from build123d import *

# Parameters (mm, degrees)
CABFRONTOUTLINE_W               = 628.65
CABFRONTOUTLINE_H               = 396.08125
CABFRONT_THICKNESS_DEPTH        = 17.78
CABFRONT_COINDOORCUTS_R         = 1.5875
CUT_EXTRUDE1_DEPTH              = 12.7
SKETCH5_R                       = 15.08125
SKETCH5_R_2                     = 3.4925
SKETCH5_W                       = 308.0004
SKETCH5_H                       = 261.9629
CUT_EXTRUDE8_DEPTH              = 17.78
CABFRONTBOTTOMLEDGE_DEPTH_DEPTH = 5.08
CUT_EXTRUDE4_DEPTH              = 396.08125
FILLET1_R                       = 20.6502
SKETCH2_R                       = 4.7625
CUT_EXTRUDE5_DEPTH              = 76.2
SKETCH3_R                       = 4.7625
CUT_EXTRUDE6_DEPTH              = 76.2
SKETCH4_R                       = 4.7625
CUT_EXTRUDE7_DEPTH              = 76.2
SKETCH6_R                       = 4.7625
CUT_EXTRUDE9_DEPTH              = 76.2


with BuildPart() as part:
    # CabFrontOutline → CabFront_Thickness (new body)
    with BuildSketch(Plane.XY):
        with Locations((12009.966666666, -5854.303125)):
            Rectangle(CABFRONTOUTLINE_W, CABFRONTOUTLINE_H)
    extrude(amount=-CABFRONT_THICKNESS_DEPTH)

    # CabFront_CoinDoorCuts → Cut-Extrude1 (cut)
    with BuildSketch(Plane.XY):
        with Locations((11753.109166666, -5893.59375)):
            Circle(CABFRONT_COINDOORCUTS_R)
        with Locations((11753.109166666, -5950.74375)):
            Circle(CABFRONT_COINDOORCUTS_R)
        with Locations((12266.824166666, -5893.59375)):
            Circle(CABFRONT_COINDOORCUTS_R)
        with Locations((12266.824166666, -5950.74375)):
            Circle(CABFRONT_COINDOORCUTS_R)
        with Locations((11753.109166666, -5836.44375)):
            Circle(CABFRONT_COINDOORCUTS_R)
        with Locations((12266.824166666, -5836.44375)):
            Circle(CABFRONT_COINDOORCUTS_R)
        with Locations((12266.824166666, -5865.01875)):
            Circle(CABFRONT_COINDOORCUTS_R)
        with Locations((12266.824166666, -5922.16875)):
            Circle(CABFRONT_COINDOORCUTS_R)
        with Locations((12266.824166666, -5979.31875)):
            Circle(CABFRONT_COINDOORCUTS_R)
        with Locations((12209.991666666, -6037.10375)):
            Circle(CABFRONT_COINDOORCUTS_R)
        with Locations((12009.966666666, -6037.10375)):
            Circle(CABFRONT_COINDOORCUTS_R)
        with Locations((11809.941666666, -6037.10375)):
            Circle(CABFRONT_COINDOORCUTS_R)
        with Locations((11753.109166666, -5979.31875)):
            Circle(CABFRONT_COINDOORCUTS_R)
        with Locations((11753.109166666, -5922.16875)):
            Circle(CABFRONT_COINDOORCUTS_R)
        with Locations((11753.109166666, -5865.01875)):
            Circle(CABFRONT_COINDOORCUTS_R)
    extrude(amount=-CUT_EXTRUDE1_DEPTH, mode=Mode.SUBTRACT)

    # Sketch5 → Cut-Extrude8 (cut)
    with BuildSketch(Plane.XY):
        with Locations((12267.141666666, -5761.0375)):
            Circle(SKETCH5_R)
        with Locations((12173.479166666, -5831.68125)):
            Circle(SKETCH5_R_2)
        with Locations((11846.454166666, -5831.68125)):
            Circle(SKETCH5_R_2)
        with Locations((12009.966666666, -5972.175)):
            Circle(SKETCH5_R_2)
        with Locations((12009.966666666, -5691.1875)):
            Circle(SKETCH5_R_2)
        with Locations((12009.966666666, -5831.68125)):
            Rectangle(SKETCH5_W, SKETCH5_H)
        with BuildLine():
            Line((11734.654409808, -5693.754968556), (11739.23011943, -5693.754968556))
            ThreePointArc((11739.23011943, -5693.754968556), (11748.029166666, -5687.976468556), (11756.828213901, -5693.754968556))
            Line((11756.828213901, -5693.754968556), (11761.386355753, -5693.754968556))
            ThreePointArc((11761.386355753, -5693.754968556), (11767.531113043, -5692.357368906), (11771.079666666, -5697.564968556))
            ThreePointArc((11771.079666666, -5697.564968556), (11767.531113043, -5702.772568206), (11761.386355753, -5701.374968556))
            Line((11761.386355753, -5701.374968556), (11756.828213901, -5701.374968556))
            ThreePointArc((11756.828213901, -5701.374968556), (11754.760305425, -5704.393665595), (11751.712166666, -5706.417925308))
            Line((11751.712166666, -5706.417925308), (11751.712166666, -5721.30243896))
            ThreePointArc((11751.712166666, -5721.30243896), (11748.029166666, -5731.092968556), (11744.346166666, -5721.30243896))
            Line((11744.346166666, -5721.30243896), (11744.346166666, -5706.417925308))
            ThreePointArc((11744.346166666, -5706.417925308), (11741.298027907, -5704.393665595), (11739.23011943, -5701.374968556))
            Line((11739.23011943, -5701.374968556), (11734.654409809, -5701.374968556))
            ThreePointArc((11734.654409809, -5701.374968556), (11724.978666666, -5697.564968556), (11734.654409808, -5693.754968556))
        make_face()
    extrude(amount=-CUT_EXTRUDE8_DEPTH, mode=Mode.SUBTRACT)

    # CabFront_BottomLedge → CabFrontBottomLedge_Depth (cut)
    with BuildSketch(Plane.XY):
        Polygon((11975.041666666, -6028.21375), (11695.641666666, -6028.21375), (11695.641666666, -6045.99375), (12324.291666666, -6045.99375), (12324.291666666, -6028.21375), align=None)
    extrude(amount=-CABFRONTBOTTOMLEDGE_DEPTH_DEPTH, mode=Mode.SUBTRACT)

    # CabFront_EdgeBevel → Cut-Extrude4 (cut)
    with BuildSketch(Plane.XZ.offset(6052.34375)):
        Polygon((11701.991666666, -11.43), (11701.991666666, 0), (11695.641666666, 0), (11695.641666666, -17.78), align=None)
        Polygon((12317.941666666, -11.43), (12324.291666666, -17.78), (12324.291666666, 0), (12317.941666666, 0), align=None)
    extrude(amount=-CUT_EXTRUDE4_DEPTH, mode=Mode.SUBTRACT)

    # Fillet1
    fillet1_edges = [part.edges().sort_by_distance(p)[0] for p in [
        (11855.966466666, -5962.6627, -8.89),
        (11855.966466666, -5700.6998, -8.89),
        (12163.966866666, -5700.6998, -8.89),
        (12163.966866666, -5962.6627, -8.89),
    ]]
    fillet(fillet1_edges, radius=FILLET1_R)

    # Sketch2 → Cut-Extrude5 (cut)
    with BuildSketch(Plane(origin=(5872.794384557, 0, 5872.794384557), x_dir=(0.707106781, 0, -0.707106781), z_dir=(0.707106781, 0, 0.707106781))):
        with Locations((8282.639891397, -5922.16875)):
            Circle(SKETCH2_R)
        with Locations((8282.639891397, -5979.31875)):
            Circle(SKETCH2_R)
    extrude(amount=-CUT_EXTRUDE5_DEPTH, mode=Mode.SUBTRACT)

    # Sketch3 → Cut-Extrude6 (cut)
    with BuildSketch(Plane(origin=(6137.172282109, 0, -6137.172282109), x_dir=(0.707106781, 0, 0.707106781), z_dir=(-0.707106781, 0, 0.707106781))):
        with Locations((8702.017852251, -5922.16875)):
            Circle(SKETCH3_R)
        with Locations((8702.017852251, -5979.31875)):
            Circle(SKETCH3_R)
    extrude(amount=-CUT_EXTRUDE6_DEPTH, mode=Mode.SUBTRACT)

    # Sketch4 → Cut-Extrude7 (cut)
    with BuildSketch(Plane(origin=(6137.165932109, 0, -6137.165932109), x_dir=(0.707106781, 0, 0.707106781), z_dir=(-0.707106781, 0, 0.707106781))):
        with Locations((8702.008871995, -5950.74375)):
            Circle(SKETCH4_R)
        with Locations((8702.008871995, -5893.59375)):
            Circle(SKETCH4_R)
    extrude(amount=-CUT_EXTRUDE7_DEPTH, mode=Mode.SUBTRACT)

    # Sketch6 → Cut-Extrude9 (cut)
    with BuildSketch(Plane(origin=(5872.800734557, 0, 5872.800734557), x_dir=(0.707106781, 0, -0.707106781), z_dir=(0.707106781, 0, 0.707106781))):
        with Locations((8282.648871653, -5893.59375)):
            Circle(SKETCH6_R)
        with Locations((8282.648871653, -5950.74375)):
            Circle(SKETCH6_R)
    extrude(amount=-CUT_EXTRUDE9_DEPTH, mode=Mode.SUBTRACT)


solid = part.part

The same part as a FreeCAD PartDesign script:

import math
import FreeCAD as App
import Part
import Sketcher
from FreeCAD import Vector
Q = App.Units.Quantity


def edges_at(feature, points):
    """Names of the edges that pass closest to the given points."""
    edges = feature.Shape.Edges
    near = lambda p: min(range(len(edges)), key=lambda i: edges[i].distToShape(Part.Vertex(*p))[0])
    return sorted({f"Edge{near(p) + 1}" for p in points})


def add_polygon(sketch, points):
    """Adds a closed chain of lines whose ends are joined by coincident constraints."""
    first, n = sketch.GeometryCount, len(points)
    for a, b in zip(points, points[1:] + points[:1]):
        sketch.addGeometry(Part.LineSegment(App.Vector(*a, 0), App.Vector(*b, 0)), False)
    for i in range(n):
        sketch.addConstraint(Sketcher.Constraint("Coincident", first + i, 2, first + (i + 1) % n, 1))

doc = App.newDocument("Part")
body = doc.addObject("PartDesign::Body", "Body")

# Sketch on XY plane
sketch1 = body.newObject("Sketcher::SketchObject", "Sketch")
sketch1.AttachmentSupport = (doc.getObject("XY_Plane"), [""])
sketch1.MapMode = "FlatFace"
add_polygon(sketch1, [(11695.641667, -5656.2625), (11695.641667, -6052.34375), (12324.291667, -6052.34375), (12324.291667, -5656.2625)])  # lines 0-3
sketch1.addConstraint(Sketcher.Constraint("Vertical", 0))
sketch1.addConstraint(Sketcher.Constraint("Horizontal", 1))
sketch1.addConstraint(Sketcher.Constraint("Vertical", 2))
sketch1.addConstraint(Sketcher.Constraint("Horizontal", 3))
sketch1.addConstraint(Sketcher.Constraint("DistanceX", 1, 1, 1, 2, Q("24.75 in")))
sketch1.addConstraint(Sketcher.Constraint("DistanceY", 0, 2, 0, 1, Q("15.59375 in")))
sketch1.addConstraint(Sketcher.Constraint("DistanceY", 0, 2, -1, 1, Q("238.28125 in")))
sketch1.addConstraint(Sketcher.Constraint("DistanceX", -1, 1, 0, 2, 11695.641667))
pad1 = body.newObject("PartDesign::Pad", "Pad")
pad1.Profile = sketch1
pad1.Length = Q("0.7 in")
pad1.Reversed = True

# Sketch on XY plane
sketch2 = body.newObject("Sketcher::SketchObject", "Sketch001")
sketch2.AttachmentSupport = (doc.getObject("XY_Plane"), [""])
sketch2.MapMode = "FlatFace"
sketch2.addGeometry(Part.Circle(Vector(11753.109167, -5893.59375, 0), Vector(0, 0, 1), 1.5875), False)
sketch2.addGeometry(Part.Circle(Vector(11753.109167, -5950.74375, 0), Vector(0, 0, 1), 1.5875), False)
sketch2.addGeometry(Part.Circle(Vector(12266.824167, -5893.59375, 0), Vector(0, 0, 1), 1.5875), False)
sketch2.addGeometry(Part.Circle(Vector(12266.824167, -5950.74375, 0), Vector(0, 0, 1), 1.5875), False)
sketch2.addGeometry(Part.Circle(Vector(11753.109167, -5836.44375, 0), Vector(0, 0, 1), 1.5875), False)
sketch2.addGeometry(Part.Circle(Vector(12266.824167, -5836.44375, 0), Vector(0, 0, 1), 1.5875), False)
sketch2.addGeometry(Part.Circle(Vector(12266.824167, -5865.01875, 0), Vector(0, 0, 1), 1.5875), False)
sketch2.addGeometry(Part.Circle(Vector(12266.824167, -5922.16875, 0), Vector(0, 0, 1), 1.5875), False)
sketch2.addGeometry(Part.Circle(Vector(12266.824167, -5979.31875, 0), Vector(0, 0, 1), 1.5875), False)
sketch2.addGeometry(Part.Circle(Vector(12209.991667, -6037.10375, 0), Vector(0, 0, 1), 1.5875), False)
sketch2.addGeometry(Part.Circle(Vector(12009.966667, -6037.10375, 0), Vector(0, 0, 1), 1.5875), False)
sketch2.addGeometry(Part.Circle(Vector(11809.941667, -6037.10375, 0), Vector(0, 0, 1), 1.5875), False)
sketch2.addGeometry(Part.Circle(Vector(11753.109167, -5979.31875, 0), Vector(0, 0, 1), 1.5875), False)
sketch2.addGeometry(Part.Circle(Vector(11753.109167, -5922.16875, 0), Vector(0, 0, 1), 1.5875), False)
sketch2.addGeometry(Part.Circle(Vector(11753.109167, -5865.01875, 0), Vector(0, 0, 1), 1.5875), False)
sketch2.addConstraint(Sketcher.Constraint("Equal", 0, 1))
sketch2.addConstraint(Sketcher.Constraint("Equal", 1, 2))
sketch2.addConstraint(Sketcher.Constraint("Equal", 2, 3))
sketch2.addConstraint(Sketcher.Constraint("Equal", 3, 4))
sketch2.addConstraint(Sketcher.Constraint("Equal", 4, 5))
sketch2.addConstraint(Sketcher.Constraint("Equal", 5, 6))
sketch2.addConstraint(Sketcher.Constraint("Equal", 6, 7))
sketch2.addConstraint(Sketcher.Constraint("Equal", 7, 8))
sketch2.addConstraint(Sketcher.Constraint("Equal", 8, 9))
sketch2.addConstraint(Sketcher.Constraint("Equal", 9, 10))
sketch2.addConstraint(Sketcher.Constraint("Equal", 10, 11))
sketch2.addConstraint(Sketcher.Constraint("Equal", 11, 12))
sketch2.addConstraint(Sketcher.Constraint("Equal", 12, 13))
sketch2.addConstraint(Sketcher.Constraint("Equal", 13, 14))
sketch2.addConstraint(Sketcher.Constraint("Horizontal", 0, 3, 2, 3))
sketch2.addConstraint(Sketcher.Constraint("Horizontal", 1, 3, 3, 3))
sketch2.addConstraint(Sketcher.Constraint("Horizontal", 4, 3, 5, 3))
sketch2.addConstraint(Sketcher.Constraint("Horizontal", 9, 3, 10, 3))
sketch2.addConstraint(Sketcher.Constraint("Horizontal", 10, 3, 11, 3))
sketch2.addConstraint(Sketcher.Constraint("Horizontal", 8, 3, 12, 3))
sketch2.addConstraint(Sketcher.Constraint("Horizontal", 7, 3, 13, 3))
sketch2.addConstraint(Sketcher.Constraint("Horizontal", 6, 3, 14, 3))
sketch2.addConstraint(Sketcher.Constraint("Vertical", 0, 3, 1, 3))
sketch2.addConstraint(Sketcher.Constraint("Vertical", 2, 3, 3, 3))
sketch2.addConstraint(Sketcher.Constraint("Vertical", 1, 3, 4, 3))
sketch2.addConstraint(Sketcher.Constraint("Vertical", 3, 3, 5, 3))
sketch2.addConstraint(Sketcher.Constraint("Vertical", 5, 3, 6, 3))
sketch2.addConstraint(Sketcher.Constraint("Vertical", 6, 3, 7, 3))
sketch2.addConstraint(Sketcher.Constraint("Vertical", 7, 3, 8, 3))
sketch2.addConstraint(Sketcher.Constraint("Vertical", 4, 3, 12, 3))
sketch2.addConstraint(Sketcher.Constraint("Vertical", 12, 3, 13, 3))
sketch2.addConstraint(Sketcher.Constraint("Vertical", 13, 3, 14, 3))
sketch2.addConstraint(Sketcher.Constraint("Diameter", 0, Q("0.125 in")))
sketch2.addConstraint(Sketcher.Constraint("DistanceY", 1, 3, 4, 3, Q("4.5 in")))
sketch2.addConstraint(Sketcher.Constraint("DistanceY", 8, 3, 6, 3, Q("4.5 in")))
sketch2.addConstraint(Sketcher.Constraint("DistanceY", 9, 3, 3, 3, Q("3.4 in")))
sketch2.addConstraint(Sketcher.Constraint("DistanceY", 1, 3, 0, 3, Q("2.25 in")))
sketch2.addConstraint(Sketcher.Constraint("DistanceY", 7, 3, 6, 3, Q("2.25 in")))
sketch2.addConstraint(Sketcher.Constraint("DistanceX", 11, 3, 9, 3, Q("15.75 in")))
sketch2.addConstraint(Sketcher.Constraint("DistanceY", 0, 3, -1, 1, Q("232.03125 in")))
sketch2.addConstraint(Sketcher.Constraint("DistanceY", 6, 3, -1, 1, Q("230.90625 in")))
sketch2.addConstraint(Sketcher.Constraint("DistanceX", 0, 3, 2, 3, Q("20.225 in")))
sketch2.addConstraint(Sketcher.Constraint("DistanceX", 10, 3, 9, 3, Q("7.875 in")))
sketch2.addConstraint(Sketcher.Constraint("DistanceX", 9, 3, 8, 3, Q("2.2375 in")))
sketch2.addConstraint(Sketcher.Constraint("DistanceX", -1, 1, 0, 3, 11753.109167))
pocket1 = body.newObject("PartDesign::Pocket", "Pocket")
pocket1.Profile = sketch2
pocket1.Length = Q("0.5 in")

# Sketch on XY plane
sketch3 = body.newObject("Sketcher::SketchObject", "Sketch002")
sketch3.AttachmentSupport = (doc.getObject("XY_Plane"), [""])
sketch3.MapMode = "FlatFace"
sketch3.addGeometry(Part.Circle(Vector(12267.141667, -5761.0375, 0), Vector(0, 0, 1), 15.08125), False)  # 0
sketch3.addGeometry(Part.Circle(Vector(12173.479167, -5831.68125, 0), Vector(0, 0, 1), 3.4925), False)  # 1
sketch3.addGeometry(Part.Circle(Vector(11846.454167, -5831.68125, 0), Vector(0, 0, 1), 3.4925), False)  # 2
sketch3.addGeometry(Part.Circle(Vector(12009.966667, -5972.175, 0), Vector(0, 0, 1), 3.4925), False)  # 3
sketch3.addGeometry(Part.Circle(Vector(12009.966667, -5691.1875, 0), Vector(0, 0, 1), 3.4925), False)  # 4
add_polygon(sketch3, [(11855.966467, -5700.6998), (11855.966467, -5962.6627), (12163.966867, -5962.6627), (12163.966867, -5700.6998)])  # lines 5-8
sketch3.addGeometry(Part.LineSegment(Vector(11739.230119, -5693.754969, 0), Vector(11734.65441, -5693.754969, 0)), False)  # 9
sketch3.addGeometry(Part.ArcOfCircle(Part.Circle(Vector(11730.566667, -5697.564969, 0), Vector(0, 0, 1), 5.588), math.radians(42.985886), math.radians(317.014114)), False)  # 10
sketch3.addGeometry(Part.LineSegment(Vector(11734.65441, -5701.374969, 0), Vector(11739.230119, -5701.374969, 0)), False)  # 11
sketch3.addGeometry(Part.ArcOfCircle(Part.Circle(Vector(11748.029167, -5697.564969, 0), Vector(0, 0, 1), 9.5885), math.radians(-156.58732), math.radians(-112.588248)), False)  # 12
sketch3.addGeometry(Part.LineSegment(Vector(11744.346167, -5706.417925, 0), Vector(11744.346167, -5721.302439, 0)), False)  # 13
sketch3.addGeometry(Part.ArcOfCircle(Part.Circle(Vector(11748.029167, -5725.504969, 0), Vector(0, 0, 1), 5.588), math.radians(131.230577), math.radians(408.769423)), False)  # 14
sketch3.addGeometry(Part.LineSegment(Vector(11751.712167, -5721.302439, 0), Vector(11751.712167, -5706.417925, 0)), False)  # 15
sketch3.addGeometry(Part.ArcOfCircle(Part.Circle(Vector(11748.029167, -5697.564969, 0), Vector(0, 0, 1), 9.5885), math.radians(-67.411752), math.radians(-23.41268)), False)  # 16
sketch3.addGeometry(Part.LineSegment(Vector(11756.828214, -5701.374969, 0), Vector(11761.386356, -5701.374969, 0)), False)  # 17
sketch3.addGeometry(Part.ArcOfCircle(Part.Circle(Vector(11765.484242, -5697.564969, 0), Vector(0, 0, 1), 5.595424), math.radians(-137.084932), math.radians(0)), False)  # 18
sketch3.addGeometry(Part.ArcOfCircle(Part.Circle(Vector(11765.484242, -5697.564969, 0), Vector(0, 0, 1), 5.595424), math.radians(0), math.radians(137.084932)), False)  # 19
sketch3.addGeometry(Part.LineSegment(Vector(11761.386356, -5693.754969, 0), Vector(11756.828214, -5693.754969, 0)), False)  # 20
sketch3.addGeometry(Part.ArcOfCircle(Part.Circle(Vector(11748.029167, -5697.564969, 0), Vector(0, 0, 1), 9.5885), math.radians(23.41268), math.radians(156.58732)), False)  # 21
sketch3.addConstraint(Sketcher.Constraint("Coincident", 9, 2, 10, 1))
sketch3.addConstraint(Sketcher.Constraint("Coincident", 10, 2, 11, 1))
sketch3.addConstraint(Sketcher.Constraint("Coincident", 11, 2, 12, 1))
sketch3.addConstraint(Sketcher.Constraint("Coincident", 12, 2, 13, 1))
sketch3.addConstraint(Sketcher.Constraint("Coincident", 13, 2, 14, 1))
sketch3.addConstraint(Sketcher.Constraint("Coincident", 14, 2, 15, 1))
sketch3.addConstraint(Sketcher.Constraint("Coincident", 15, 2, 16, 1))
sketch3.addConstraint(Sketcher.Constraint("Coincident", 16, 2, 17, 1))
sketch3.addConstraint(Sketcher.Constraint("Coincident", 17, 2, 18, 1))
sketch3.addConstraint(Sketcher.Constraint("Tangent", 18, 2, 19, 1))
sketch3.addConstraint(Sketcher.Constraint("Coincident", 19, 2, 20, 1))
sketch3.addConstraint(Sketcher.Constraint("Coincident", 20, 2, 21, 1))
sketch3.addConstraint(Sketcher.Constraint("Coincident", 21, 2, 9, 1))
sketch3.addConstraint(Sketcher.Constraint("Vertical", 5))
sketch3.addConstraint(Sketcher.Constraint("Horizontal", 6))
sketch3.addConstraint(Sketcher.Constraint("Vertical", 7))
sketch3.addConstraint(Sketcher.Constraint("Horizontal", 8))
sketch3.addConstraint(Sketcher.Constraint("Horizontal", 9))
sketch3.addConstraint(Sketcher.Constraint("Horizontal", 11))
sketch3.addConstraint(Sketcher.Constraint("Vertical", 13))
sketch3.addConstraint(Sketcher.Constraint("Vertical", 15))
sketch3.addConstraint(Sketcher.Constraint("Horizontal", 17))
sketch3.addConstraint(Sketcher.Constraint("Horizontal", 20))
sketch3.addConstraint(Sketcher.Constraint("Coincident", 16, 3, 12, 3))
sketch3.addConstraint(Sketcher.Constraint("Coincident", 21, 3, 12, 3))
sketch3.addConstraint(Sketcher.Constraint("Equal", 1, 2))
sketch3.addConstraint(Sketcher.Constraint("Equal", 2, 3))
sketch3.addConstraint(Sketcher.Constraint("Equal", 3, 4))
sketch3.addConstraint(Sketcher.Constraint("Equal", 10, 14))
sketch3.addConstraint(Sketcher.Constraint("Equal", 12, 16))
sketch3.addConstraint(Sketcher.Constraint("Equal", 18, 19))
sketch3.addConstraint(Sketcher.Constraint("Equal", 16, 21))
sketch3.addConstraint(Sketcher.Constraint("Horizontal", 1, 3, 2, 3))
sketch3.addConstraint(Sketcher.Constraint("Horizontal", 10, 3, 12, 3))
sketch3.addConstraint(Sketcher.Constraint("Horizontal", 16, 3, 18, 3))
sketch3.addConstraint(Sketcher.Constraint("Horizontal", 13, 2, 14, 2))
sketch3.addConstraint(Sketcher.Constraint("Horizontal", 12, 2, 15, 2))
sketch3.addConstraint(Sketcher.Constraint("Horizontal", 11, 2, 16, 2))
sketch3.addConstraint(Sketcher.Constraint("Horizontal", 21, 3, 18, 2))
sketch3.addConstraint(Sketcher.Constraint("Horizontal", 9, 2, 19, 2))
sketch3.addConstraint(Sketcher.Constraint("Vertical", 3, 3, 4, 3))
sketch3.addConstraint(Sketcher.Constraint("Vertical", 9, 2, 10, 2))
sketch3.addConstraint(Sketcher.Constraint("Radius", 10, Q("0.22 in")))
sketch3.addConstraint(Sketcher.Constraint("Diameter", 0, Q("1.1875 in")))
sketch3.addConstraint(Sketcher.Constraint("Diameter", 1, Q("0.275 in")))
sketch3.addConstraint(Sketcher.Constraint("DistanceX", 10, 3, 4, 3, Q("11 in")))
sketch3.addConstraint(Sketcher.Constraint("Radius", 12, Q("0.3775 in")))
sketch3.addConstraint(Sketcher.Constraint("DistanceY", 14, 3, 12, 3, Q("1.1 in")))
sketch3.addConstraint(Sketcher.Constraint("DistanceY", 10, 2, 9, 2, Q("0.3 in")))
sketch3.addConstraint(Sketcher.Constraint("DistanceX", 6, 1, 6, 2, Q("12.126 in")))
sketch3.addConstraint(Sketcher.Constraint("DistanceY", 0, 3, 4, 3, Q("2.75 in")))
sketch3.addConstraint(Sketcher.Constraint("DistanceX", 12, 3, 1, 3, Q("16.75 in")))
sketch3.addConstraint(Sketcher.Constraint("DistanceX", 13, 2, 14, 2, Q("0.29 in")))
sketch3.addConstraint(Sketcher.Constraint("DistanceY", 5, 2, 5, 1, Q("10.3135 in")))
sketch3.addConstraint(Sketcher.Constraint("DistanceY", 0, 3, -1, 1, Q("226.8125 in")))
sketch3.addConstraint(Sketcher.Constraint("DistanceY", 1, 3, -1, 1, Q("229.59375 in")))
sketch3.addConstraint(Sketcher.Constraint("DistanceY", 3, 3, -1, 1, Q("235.125 in")))
sketch3.addConstraint(Sketcher.Constraint("DistanceY", 7, 2, -1, 1, Q("224.437 in")))
sketch3.addConstraint(Sketcher.Constraint("DistanceX", 1, 3, 0, 3, Q("3.6875 in")))
sketch3.addConstraint(Sketcher.Constraint("DistanceX", 2, 3, 1, 3, Q("12.875 in")))
sketch3.addConstraint(Sketcher.Constraint("DistanceX", 2, 3, 3, 3, Q("6.4375 in")))
sketch3.addConstraint(Sketcher.Constraint("DistanceX", 5, 2, 3, 3, Q("6.063 in")))
sketch3.addConstraint(Sketcher.Constraint("Radius", 18, 5.595424))
sketch3.addConstraint(Sketcher.Constraint("DistanceX", 15, 2, 18, 2, Q("0.7625 in")))
sketch3.addConstraint(Sketcher.Constraint("DistanceY", 10, 3, -1, 1, 5697.564969))
sketch3.addConstraint(Sketcher.Constraint("DistanceX", -1, 1, 9, 2, 11734.65441))
pocket2 = body.newObject("PartDesign::Pocket", "Pocket001")
pocket2.Profile = sketch3
pocket2.Length = Q("0.7 in")

# Sketch on XY plane
sketch4 = body.newObject("Sketcher::SketchObject", "Sketch003")
sketch4.AttachmentSupport = (doc.getObject("XY_Plane"), [""])
sketch4.MapMode = "FlatFace"
add_polygon(sketch4, [(11695.641667, -6028.21375), (11695.641667, -6045.99375), (12324.291667, -6045.99375), (12324.291667, -6028.21375)])  # lines 0-3
sketch4.addConstraint(Sketcher.Constraint("Vertical", 0))
sketch4.addConstraint(Sketcher.Constraint("Horizontal", 1))
sketch4.addConstraint(Sketcher.Constraint("Vertical", 2))
sketch4.addConstraint(Sketcher.Constraint("Horizontal", 3))
sketch4.addConstraint(Sketcher.Constraint("DistanceY", 0, 2, 0, 1, Q("0.7 in")))
sketch4.addConstraint(Sketcher.Constraint("DistanceX", 1, 1, 1, 2, Q("24.75 in")))
sketch4.addConstraint(Sketcher.Constraint("DistanceY", 0, 2, -1, 1, Q("238.03125 in")))
sketch4.addConstraint(Sketcher.Constraint("DistanceX", -1, 1, 0, 2, 11695.641667))
pocket3 = body.newObject("PartDesign::Pocket", "Pocket002")
pocket3.Profile = sketch4
pocket3.Length = Q("0.2 in")

# Sketch on XZ plane
sketch5 = body.newObject("Sketcher::SketchObject", "Sketch004")
sketch5.AttachmentSupport = (doc.getObject("XZ_Plane"), [""])
sketch5.MapMode = "FlatFace"
sketch5.AttachmentOffset = App.Placement(Vector(0, 0, 238.28125 * 25.4), App.Rotation())
add_polygon(sketch5, [(11701.991667, -11.43), (11701.991667, 0), (11695.641667, 0), (11695.641667, -17.78)])  # lines 0-3
add_polygon(sketch5, [(12317.941667, -11.43), (12324.291667, -17.78), (12324.291667, 0), (12317.941667, 0)])  # lines 4-7
sketch5.addConstraint(Sketcher.Constraint("Vertical", 0))
sketch5.addConstraint(Sketcher.Constraint("Horizontal", 1))
sketch5.addConstraint(Sketcher.Constraint("Vertical", 2))
sketch5.addConstraint(Sketcher.Constraint("Vertical", 5))
sketch5.addConstraint(Sketcher.Constraint("Horizontal", 6))
sketch5.addConstraint(Sketcher.Constraint("Vertical", 7))
sketch5.addConstraint(Sketcher.Constraint("PointOnObject", 0, 2, -1))
sketch5.addConstraint(Sketcher.Constraint("PointOnObject", 5, 2, -1))
sketch5.addConstraint(Sketcher.Constraint("Perpendicular", 3, 4))
sketch5.addConstraint(Sketcher.Constraint("Horizontal", 2, 2, 4, 2))
sketch5.addConstraint(Sketcher.Constraint("Horizontal", 3, 2, 7, 2))
sketch5.addConstraint(Sketcher.Constraint("Equal", 1, 6))
sketch5.addConstraint(Sketcher.Constraint("DistanceY", 2, 2, 2, 1, Q("0.7 in")))
sketch5.addConstraint(Sketcher.Constraint("DistanceX", 1, 2, 1, 1, Q("0.25 in")))
sketch5.addConstraint(Sketcher.Constraint("DistanceX", 3, 2, 4, 2, Q("24.5 in")))
sketch5.addConstraint(Sketcher.Constraint("DistanceX", -1, 1, 0, 2, 11701.991667))
pocket4 = body.newObject("PartDesign::Pocket", "Pocket003")
pocket4.Profile = sketch5
pocket4.Length = Q("15.59375 in")
doc.recompute()

fillet = body.newObject("PartDesign::Fillet", "Fillet")
fillet.Base = (pocket4, edges_at(pocket4, [
    (11855.966, -5962.663, -8.89),
    (11855.966, -5700.7, -8.89),
    (12163.967, -5700.7, -8.89),
    (12163.967, -5962.663, -8.89),
]))
fillet.Radius = Q("0.813 in")

# Sketch on an angled plane
sketch6 = body.newObject("Sketcher::SketchObject", "Sketch005")
sketch6.Placement = App.Placement(Vector(5872.794385, 0, 5872.794385), App.Rotation(Vector(0.707106781, 0, -0.707106781), Vector(0, 0.999999999, 0), Vector(0.707106781, 0, 0.707106781), "ZXY"))
sketch6.addGeometry(Part.Circle(Vector(8282.639887, -5922.168744, 0), Vector(0, 0, 1), 4.7625), False)
sketch6.addGeometry(Part.Circle(Vector(8282.639887, -5979.318744, 0), Vector(0, 0, 1), 4.7625), False)
sketch6.addConstraint(Sketcher.Constraint("Equal", 0, 1))
sketch6.addConstraint(Sketcher.Constraint("Vertical", 0, 3, 1, 3))
sketch6.addConstraint(Sketcher.Constraint("Diameter", 0, Q("0.375 in")))
sketch6.addConstraint(Sketcher.Constraint("DistanceY", 1, 3, 0, 3, Q("2.25 in")))
sketch6.addConstraint(Sketcher.Constraint("DistanceX", -1, 1, 0, 3, 8282.639887))
sketch6.addConstraint(Sketcher.Constraint("DistanceY", 0, 3, -1, 1, 5922.168744))
pocket5 = body.newObject("PartDesign::Pocket", "Pocket004")
pocket5.Profile = sketch6
pocket5.Length = Q("3 in")

# Sketch on an angled plane
sketch7 = body.newObject("Sketcher::SketchObject", "Sketch006")
sketch7.Placement = App.Placement(Vector(6137.172282, 0, -6137.172282), App.Rotation(Vector(0.707106781, 0, 0.707106781), Vector(0, 0.999999999, 0), Vector(-0.707106781, 0, 0.707106781), "ZXY"))
sketch7.addGeometry(Part.Circle(Vector(8702.017848, -5922.168744, 0), Vector(0, 0, 1), 4.7625), False)
sketch7.addGeometry(Part.Circle(Vector(8702.017848, -5979.318744, 0), Vector(0, 0, 1), 4.7625), False)
sketch7.addConstraint(Sketcher.Constraint("Equal", 0, 1))
sketch7.addConstraint(Sketcher.Constraint("Vertical", 0, 3, 1, 3))
sketch7.addConstraint(Sketcher.Constraint("Diameter", 0, Q("0.375 in")))
sketch7.addConstraint(Sketcher.Constraint("DistanceY", 1, 3, 0, 3, Q("2.25 in")))
sketch7.addConstraint(Sketcher.Constraint("DistanceX", -1, 1, 0, 3, 8702.017848))
sketch7.addConstraint(Sketcher.Constraint("DistanceY", 0, 3, -1, 1, 5922.168744))
pocket6 = body.newObject("PartDesign::Pocket", "Pocket005")
pocket6.Profile = sketch7
pocket6.Length = Q("3 in")

# Sketch on an angled plane
sketch8 = body.newObject("Sketcher::SketchObject", "Sketch007")
sketch8.Placement = App.Placement(Vector(6137.165932, 0, -6137.165932), App.Rotation(Vector(0.707106781, 0, 0.707106781), Vector(0, 0.999999999, 0), Vector(-0.707106781, 0, 0.707106781), "ZXY"))
sketch8.addGeometry(Part.Circle(Vector(8702.008867, -5950.743744, 0), Vector(0, 0, 1), 4.7625), False)
sketch8.addGeometry(Part.Circle(Vector(8702.008867, -5893.593744, 0), Vector(0, 0, 1), 4.7625), False)
sketch8.addConstraint(Sketcher.Constraint("Equal", 0, 1))
sketch8.addConstraint(Sketcher.Constraint("Vertical", 0, 3, 1, 3))
sketch8.addConstraint(Sketcher.Constraint("Diameter", 0, Q("0.375 in")))
sketch8.addConstraint(Sketcher.Constraint("DistanceY", 0, 3, 1, 3, Q("2.25 in")))
sketch8.addConstraint(Sketcher.Constraint("DistanceX", -1, 1, 0, 3, 8702.008867))
sketch8.addConstraint(Sketcher.Constraint("DistanceY", 0, 3, -1, 1, 5950.743744))
pocket7 = body.newObject("PartDesign::Pocket", "Pocket006")
pocket7.Profile = sketch8
pocket7.Length = Q("3 in")

# Sketch on an angled plane
sketch9 = body.newObject("Sketcher::SketchObject", "Sketch008")
sketch9.Placement = App.Placement(Vector(5872.800735, 0, 5872.800735), App.Rotation(Vector(0.707106781, 0, -0.707106781), Vector(0, 0.999999999, 0), Vector(0.707106781, 0, 0.707106781), "ZXY"))
sketch9.addGeometry(Part.Circle(Vector(8282.648867, -5893.593744, 0), Vector(0, 0, 1), 4.7625), False)
sketch9.addGeometry(Part.Circle(Vector(8282.648867, -5950.743744, 0), Vector(0, 0, 1), 4.7625), False)
sketch9.addConstraint(Sketcher.Constraint("Equal", 0, 1))
sketch9.addConstraint(Sketcher.Constraint("Vertical", 0, 3, 1, 3))
sketch9.addConstraint(Sketcher.Constraint("Diameter", 0, Q("0.375 in")))
sketch9.addConstraint(Sketcher.Constraint("DistanceY", 1, 3, 0, 3, Q("2.25 in")))
sketch9.addConstraint(Sketcher.Constraint("DistanceX", -1, 1, 0, 3, 8282.648867))
sketch9.addConstraint(Sketcher.Constraint("DistanceY", 0, 3, -1, 1, 5893.593744))
pocket8 = body.newObject("PartDesign::Pocket", "Pocket007")
pocket8.Profile = sketch9
pocket8.Length = Q("3 in")

doc.recompute()
